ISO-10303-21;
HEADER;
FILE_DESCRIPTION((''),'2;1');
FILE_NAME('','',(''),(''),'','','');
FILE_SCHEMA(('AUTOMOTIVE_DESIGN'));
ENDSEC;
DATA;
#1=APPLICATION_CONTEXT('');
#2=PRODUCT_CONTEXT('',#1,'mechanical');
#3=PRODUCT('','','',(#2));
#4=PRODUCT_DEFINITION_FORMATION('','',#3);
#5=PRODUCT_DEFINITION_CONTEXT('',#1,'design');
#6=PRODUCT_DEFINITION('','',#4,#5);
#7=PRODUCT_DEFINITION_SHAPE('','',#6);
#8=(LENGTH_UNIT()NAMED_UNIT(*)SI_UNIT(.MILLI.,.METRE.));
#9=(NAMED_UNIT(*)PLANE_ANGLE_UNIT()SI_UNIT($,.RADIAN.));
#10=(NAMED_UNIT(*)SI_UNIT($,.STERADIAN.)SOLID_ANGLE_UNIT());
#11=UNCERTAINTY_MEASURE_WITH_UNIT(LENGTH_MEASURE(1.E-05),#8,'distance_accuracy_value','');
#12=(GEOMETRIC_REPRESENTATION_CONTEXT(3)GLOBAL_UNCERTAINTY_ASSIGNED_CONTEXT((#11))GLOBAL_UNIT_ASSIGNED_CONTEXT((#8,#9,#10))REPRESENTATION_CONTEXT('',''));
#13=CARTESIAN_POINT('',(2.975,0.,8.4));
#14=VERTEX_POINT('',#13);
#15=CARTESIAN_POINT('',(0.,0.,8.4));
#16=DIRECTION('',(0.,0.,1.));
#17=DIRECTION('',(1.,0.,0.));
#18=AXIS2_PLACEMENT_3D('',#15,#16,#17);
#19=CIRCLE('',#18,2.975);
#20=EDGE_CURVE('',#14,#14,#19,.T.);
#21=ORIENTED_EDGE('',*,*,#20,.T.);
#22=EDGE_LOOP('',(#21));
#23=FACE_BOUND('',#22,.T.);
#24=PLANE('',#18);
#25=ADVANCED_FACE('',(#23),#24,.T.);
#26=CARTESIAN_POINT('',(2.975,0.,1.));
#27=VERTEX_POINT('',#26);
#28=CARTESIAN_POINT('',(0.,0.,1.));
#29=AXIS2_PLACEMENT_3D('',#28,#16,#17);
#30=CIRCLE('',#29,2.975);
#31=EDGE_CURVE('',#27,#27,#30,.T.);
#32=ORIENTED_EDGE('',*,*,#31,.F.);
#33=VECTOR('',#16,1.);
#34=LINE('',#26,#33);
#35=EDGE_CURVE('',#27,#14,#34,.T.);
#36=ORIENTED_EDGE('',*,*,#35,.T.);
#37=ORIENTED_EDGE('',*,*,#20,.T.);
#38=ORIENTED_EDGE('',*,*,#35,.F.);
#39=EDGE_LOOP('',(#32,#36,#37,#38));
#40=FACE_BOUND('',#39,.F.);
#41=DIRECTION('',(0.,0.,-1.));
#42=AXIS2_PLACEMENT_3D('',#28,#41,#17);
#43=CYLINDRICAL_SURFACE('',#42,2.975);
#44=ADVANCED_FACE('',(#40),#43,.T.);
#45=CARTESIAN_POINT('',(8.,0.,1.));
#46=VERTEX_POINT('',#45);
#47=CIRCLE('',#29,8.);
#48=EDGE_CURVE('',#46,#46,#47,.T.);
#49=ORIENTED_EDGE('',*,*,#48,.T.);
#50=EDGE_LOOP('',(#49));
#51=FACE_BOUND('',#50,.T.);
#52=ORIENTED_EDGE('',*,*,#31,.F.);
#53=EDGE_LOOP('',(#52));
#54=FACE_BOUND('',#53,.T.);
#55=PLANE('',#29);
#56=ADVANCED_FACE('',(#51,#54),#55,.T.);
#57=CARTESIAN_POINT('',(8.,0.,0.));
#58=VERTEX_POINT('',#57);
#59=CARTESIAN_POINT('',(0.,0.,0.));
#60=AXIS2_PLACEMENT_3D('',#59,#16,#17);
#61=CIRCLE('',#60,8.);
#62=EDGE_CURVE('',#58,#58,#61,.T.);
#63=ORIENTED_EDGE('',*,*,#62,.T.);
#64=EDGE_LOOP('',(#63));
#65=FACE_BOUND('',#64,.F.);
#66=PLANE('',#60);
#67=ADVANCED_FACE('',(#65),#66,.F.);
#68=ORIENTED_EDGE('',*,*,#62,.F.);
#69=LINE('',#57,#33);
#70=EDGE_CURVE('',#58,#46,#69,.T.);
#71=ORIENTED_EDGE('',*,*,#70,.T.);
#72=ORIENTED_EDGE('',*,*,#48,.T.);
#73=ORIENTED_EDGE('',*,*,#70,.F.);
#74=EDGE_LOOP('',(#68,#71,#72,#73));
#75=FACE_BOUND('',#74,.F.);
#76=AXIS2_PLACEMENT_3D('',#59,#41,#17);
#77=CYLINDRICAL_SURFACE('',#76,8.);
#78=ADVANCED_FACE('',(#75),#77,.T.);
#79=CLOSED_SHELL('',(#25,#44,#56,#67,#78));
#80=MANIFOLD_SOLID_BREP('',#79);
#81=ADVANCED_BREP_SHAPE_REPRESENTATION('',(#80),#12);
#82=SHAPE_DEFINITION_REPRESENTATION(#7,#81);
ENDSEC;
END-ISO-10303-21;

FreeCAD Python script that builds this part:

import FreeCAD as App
import Part
import Sketcher
from FreeCAD import Vector
Q = App.Units.Quantity

doc = App.newDocument("Part")
body = doc.addObject("PartDesign::Body", "Body")

# Sketch on XY plane
sketch1 = body.newObject("Sketcher::SketchObject", "Sketch")
sketch1.AttachmentSupport = (doc.getObject("XY_Plane"), [""])
sketch1.MapMode = "FlatFace"
sketch1.addGeometry(Part.Circle(Vector(-0.163499, 0.889151, 0), Vector(0, 0, 1), 8), False)
sketch1.addConstraint([
    Sketcher.Constraint("Diameter", 0, Q("16 mm")),
    Sketcher.Constraint("DistanceX", 0, 3, -1, 1, Q("0.163499 mm")),
    Sketcher.Constraint("DistanceY", -1, 1, 0, 3, Q("0.889151 mm")),
])
pad1 = body.newObject("PartDesign::Pad", "Pad")
pad1.Profile = sketch1
pad1.Length = 1
body2 = doc.addObject("PartDesign::Body", "Body001")

# Sketch on XY plane
sketch2 = body2.newObject("Sketcher::SketchObject", "Sketch001")
sketch2.AttachmentSupport = (doc.getObject("XY_Plane001"), [""])
sketch2.MapMode = "FlatFace"
sketch2.addGeometry(Part.Circle(Vector(0, 0, 0), Vector(0, 0, 1), 8), False)
sketch2.addConstraint([
    Sketcher.Constraint("Coincident", 0, 3, -1, 1),
    Sketcher.Constraint("Diameter", 0, Q("16 mm")),
])
pad2 = body2.newObject("PartDesign::Pad", "Pad001")
pad2.Profile = sketch2
pad2.Length = 1

# Sketch on XY plane
sketch3 = body2.newObject("Sketcher::SketchObject", "Sketch002")
sketch3.AttachmentSupport = (doc.getObject("XY_Plane001"), [""])
sketch3.MapMode = "FlatFace"
sketch3.AttachmentOffset = App.Placement(Vector(0, 0, 1), App.Rotation())
sketch3.addGeometry(Part.Circle(Vector(0, 0, 0), Vector(0, 0, 1), 2.975), False)
sketch3.addConstraint([
    Sketcher.Constraint("Coincident", 0, 3, -1, 1),
    Sketcher.Constraint("Diameter", 0, Q("5.95 mm")),
])
pad3 = body2.newObject("PartDesign::Pad", "Pad002")
pad3.Profile = sketch3
pad3.Length = 7.4
body.Visibility = False

doc.recompute()
